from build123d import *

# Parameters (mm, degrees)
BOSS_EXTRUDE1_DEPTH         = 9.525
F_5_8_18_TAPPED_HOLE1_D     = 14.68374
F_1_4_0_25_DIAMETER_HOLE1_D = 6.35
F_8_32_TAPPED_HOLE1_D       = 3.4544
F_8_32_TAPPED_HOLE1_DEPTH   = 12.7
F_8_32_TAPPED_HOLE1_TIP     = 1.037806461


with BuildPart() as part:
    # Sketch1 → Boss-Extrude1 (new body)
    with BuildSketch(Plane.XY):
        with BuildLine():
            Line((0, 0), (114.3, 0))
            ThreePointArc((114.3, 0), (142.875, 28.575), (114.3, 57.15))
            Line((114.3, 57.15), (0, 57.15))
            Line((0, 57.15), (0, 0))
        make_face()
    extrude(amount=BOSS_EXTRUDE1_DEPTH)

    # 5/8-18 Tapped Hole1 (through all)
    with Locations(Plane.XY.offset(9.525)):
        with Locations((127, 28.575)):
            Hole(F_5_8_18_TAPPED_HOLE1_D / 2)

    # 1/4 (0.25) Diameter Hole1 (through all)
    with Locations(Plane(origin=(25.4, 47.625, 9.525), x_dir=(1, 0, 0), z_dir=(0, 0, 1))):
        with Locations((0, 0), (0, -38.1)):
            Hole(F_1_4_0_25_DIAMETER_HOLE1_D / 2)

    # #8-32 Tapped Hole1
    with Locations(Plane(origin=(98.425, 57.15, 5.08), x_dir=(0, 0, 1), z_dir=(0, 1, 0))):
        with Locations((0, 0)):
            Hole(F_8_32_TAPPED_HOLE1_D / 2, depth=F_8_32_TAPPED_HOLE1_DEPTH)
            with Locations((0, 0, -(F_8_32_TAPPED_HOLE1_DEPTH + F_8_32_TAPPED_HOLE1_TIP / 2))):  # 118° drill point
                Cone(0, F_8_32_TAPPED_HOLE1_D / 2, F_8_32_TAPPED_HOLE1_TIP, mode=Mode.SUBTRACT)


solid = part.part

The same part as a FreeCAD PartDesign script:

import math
import FreeCAD as App
import Part
import Sketcher

V = App.Vector
Q = App.Units.Quantity

doc = App.newDocument("Part")
body = doc.addObject("PartDesign::Body", "Body")

sketch1 = body.newObject("Sketcher::SketchObject", "Sketch")
sketch1.AttachmentSupport = (doc.getObject("XY_Plane"), [""])
sketch1.MapMode = "FlatFace"
sketch1.addGeometry([
    Part.LineSegment(V(0, 0, 0), V(114, 0, 0)),
    Part.ArcOfCircle(Part.Circle(V(114, 29, 0), V(0, 0, 1), 29), math.radians(-90), math.radians(90)),
    Part.LineSegment(V(114, 57, 0), V(0, 57, 0)),
    Part.LineSegment(V(0, 57, 0), V(0, 0, 0)),
], False)
sketch1.addConstraint([
    Sketcher.Constraint("Tangent", 0, 2, 1, 1),
    Sketcher.Constraint("Tangent", 1, 2, 2, 1),
    Sketcher.Constraint("Coincident", 2, 2, 3, 1),
    Sketcher.Constraint("Coincident", 3, 2, 0, 1),
    Sketcher.Constraint("Horizontal", 0),
    Sketcher.Constraint("Horizontal", 2),
    Sketcher.Constraint("Vertical", 3),
    Sketcher.Constraint("Coincident", 3, 2, -1, 1),
    Sketcher.Constraint("DistanceX", 0, 1, 0, 2, Q("4.5 in")),
    Sketcher.Constraint("Radius", 1, Q("1.125 in")),
])
pad1 = body.newObject("PartDesign::Pad", "Pad")
pad1.Profile = sketch1
pad1.Length = Q("0.375 in")

sketch2 = body.newObject("Sketcher::SketchObject", "Sketch001")
sketch2.AttachmentSupport = (doc.getObject("XY_Plane"), [""])
sketch2.MapMode = "FlatFace"
sketch2.AttachmentOffset = App.Placement(V(0, 0, 0.375 * 25.4), App.Rotation())
sketch2.addGeometry(Part.Circle(V(127, 29, 0), V(0, 0, 1), 7), False)
sketch2.addConstraint([
    Sketcher.Constraint("DistanceX", -1, 1, 0, 3, Q("5 in")),
    Sketcher.Constraint("Diameter", 0, Q("0.5781 in")),
    Sketcher.Constraint("DistanceY", -1, 1, 0, 3, Q("1.125 in")),
])
doc.recompute()
hole = body.newObject("PartDesign::Hole", "Hole")
hole.Profile = sketch2
hole.ThreadType = "None"
hole.Diameter = Q("0.5781 in")
hole.DepthType = "ThroughAll"

sketch3 = body.newObject("Sketcher::SketchObject", "Sketch002")
sketch3.AttachmentSupport = (doc.getObject("XY_Plane"), [""])
sketch3.MapMode = "FlatFace"
sketch3.AttachmentOffset = App.Placement(V(0, 0, 0.375 * 25.4), App.Rotation())
sketch3.addGeometry([
    Part.Circle(V(25.4, 47.6, 0), V(0, 0, 1), 3.2),
    Part.Circle(V(25.4, 9.5, 0), V(0, 0, 1), 3.2),
], False)
sketch3.addConstraint([
    Sketcher.Constraint("Equal", 0, 1),
    Sketcher.Constraint("Vertical", 0, 3, 1, 3),
    Sketcher.Constraint("Diameter", 0, Q("0.25 in")),
    Sketcher.Constraint("DistanceX", -1, 1, 0, 3, Q("1 in")),
    Sketcher.Constraint("DistanceY", 1, 3, 0, 3, Q("1.5 in")),
    Sketcher.Constraint("DistanceY", -1, 1, 0, 3, Q("1.875 in")),
])
doc.recompute()
hole2 = body.newObject("PartDesign::Hole", "Hole001")
hole2.Profile = sketch3
hole2.ThreadType = "None"
hole2.Diameter = Q("0.25 in")
hole2.DepthType = "ThroughAll"

sketch4 = body.newObject("Sketcher::SketchObject", "Sketch003")
sketch4.AttachmentSupport = (doc.getObject("XZ_Plane"), [""])
sketch4.MapMode = "FlatFace"
sketch4.AttachmentOffset = App.Placement(V(0, 0, -2.25 * 25.4), App.Rotation())
sketch4.addGeometry(Part.Circle(V(98.4, 5.1, 0), V(0, 0, 1), 1.7), False)
sketch4.addConstraint([
    Sketcher.Constraint("Diameter", 0, Q("0.136 in")),
    Sketcher.Constraint("DistanceY", -1, 1, 0, 3, Q("0.2 in")),
    Sketcher.Constraint("DistanceX", -1, 1, 0, 3, Q("3.875 in")),
])
doc.recompute()
hole3 = body.newObject("PartDesign::Hole", "Hole002")
hole3.Profile = sketch4
hole3.ThreadType = "None"
hole3.Diameter = Q("0.136 in")
hole3.DepthType = "Dimension"
hole3.Depth = Q("0.5 in")
hole3.DrillPoint = "Angled"
hole3.DrillPointAngle = 118
hole3.Reversed = True

doc.recompute()
